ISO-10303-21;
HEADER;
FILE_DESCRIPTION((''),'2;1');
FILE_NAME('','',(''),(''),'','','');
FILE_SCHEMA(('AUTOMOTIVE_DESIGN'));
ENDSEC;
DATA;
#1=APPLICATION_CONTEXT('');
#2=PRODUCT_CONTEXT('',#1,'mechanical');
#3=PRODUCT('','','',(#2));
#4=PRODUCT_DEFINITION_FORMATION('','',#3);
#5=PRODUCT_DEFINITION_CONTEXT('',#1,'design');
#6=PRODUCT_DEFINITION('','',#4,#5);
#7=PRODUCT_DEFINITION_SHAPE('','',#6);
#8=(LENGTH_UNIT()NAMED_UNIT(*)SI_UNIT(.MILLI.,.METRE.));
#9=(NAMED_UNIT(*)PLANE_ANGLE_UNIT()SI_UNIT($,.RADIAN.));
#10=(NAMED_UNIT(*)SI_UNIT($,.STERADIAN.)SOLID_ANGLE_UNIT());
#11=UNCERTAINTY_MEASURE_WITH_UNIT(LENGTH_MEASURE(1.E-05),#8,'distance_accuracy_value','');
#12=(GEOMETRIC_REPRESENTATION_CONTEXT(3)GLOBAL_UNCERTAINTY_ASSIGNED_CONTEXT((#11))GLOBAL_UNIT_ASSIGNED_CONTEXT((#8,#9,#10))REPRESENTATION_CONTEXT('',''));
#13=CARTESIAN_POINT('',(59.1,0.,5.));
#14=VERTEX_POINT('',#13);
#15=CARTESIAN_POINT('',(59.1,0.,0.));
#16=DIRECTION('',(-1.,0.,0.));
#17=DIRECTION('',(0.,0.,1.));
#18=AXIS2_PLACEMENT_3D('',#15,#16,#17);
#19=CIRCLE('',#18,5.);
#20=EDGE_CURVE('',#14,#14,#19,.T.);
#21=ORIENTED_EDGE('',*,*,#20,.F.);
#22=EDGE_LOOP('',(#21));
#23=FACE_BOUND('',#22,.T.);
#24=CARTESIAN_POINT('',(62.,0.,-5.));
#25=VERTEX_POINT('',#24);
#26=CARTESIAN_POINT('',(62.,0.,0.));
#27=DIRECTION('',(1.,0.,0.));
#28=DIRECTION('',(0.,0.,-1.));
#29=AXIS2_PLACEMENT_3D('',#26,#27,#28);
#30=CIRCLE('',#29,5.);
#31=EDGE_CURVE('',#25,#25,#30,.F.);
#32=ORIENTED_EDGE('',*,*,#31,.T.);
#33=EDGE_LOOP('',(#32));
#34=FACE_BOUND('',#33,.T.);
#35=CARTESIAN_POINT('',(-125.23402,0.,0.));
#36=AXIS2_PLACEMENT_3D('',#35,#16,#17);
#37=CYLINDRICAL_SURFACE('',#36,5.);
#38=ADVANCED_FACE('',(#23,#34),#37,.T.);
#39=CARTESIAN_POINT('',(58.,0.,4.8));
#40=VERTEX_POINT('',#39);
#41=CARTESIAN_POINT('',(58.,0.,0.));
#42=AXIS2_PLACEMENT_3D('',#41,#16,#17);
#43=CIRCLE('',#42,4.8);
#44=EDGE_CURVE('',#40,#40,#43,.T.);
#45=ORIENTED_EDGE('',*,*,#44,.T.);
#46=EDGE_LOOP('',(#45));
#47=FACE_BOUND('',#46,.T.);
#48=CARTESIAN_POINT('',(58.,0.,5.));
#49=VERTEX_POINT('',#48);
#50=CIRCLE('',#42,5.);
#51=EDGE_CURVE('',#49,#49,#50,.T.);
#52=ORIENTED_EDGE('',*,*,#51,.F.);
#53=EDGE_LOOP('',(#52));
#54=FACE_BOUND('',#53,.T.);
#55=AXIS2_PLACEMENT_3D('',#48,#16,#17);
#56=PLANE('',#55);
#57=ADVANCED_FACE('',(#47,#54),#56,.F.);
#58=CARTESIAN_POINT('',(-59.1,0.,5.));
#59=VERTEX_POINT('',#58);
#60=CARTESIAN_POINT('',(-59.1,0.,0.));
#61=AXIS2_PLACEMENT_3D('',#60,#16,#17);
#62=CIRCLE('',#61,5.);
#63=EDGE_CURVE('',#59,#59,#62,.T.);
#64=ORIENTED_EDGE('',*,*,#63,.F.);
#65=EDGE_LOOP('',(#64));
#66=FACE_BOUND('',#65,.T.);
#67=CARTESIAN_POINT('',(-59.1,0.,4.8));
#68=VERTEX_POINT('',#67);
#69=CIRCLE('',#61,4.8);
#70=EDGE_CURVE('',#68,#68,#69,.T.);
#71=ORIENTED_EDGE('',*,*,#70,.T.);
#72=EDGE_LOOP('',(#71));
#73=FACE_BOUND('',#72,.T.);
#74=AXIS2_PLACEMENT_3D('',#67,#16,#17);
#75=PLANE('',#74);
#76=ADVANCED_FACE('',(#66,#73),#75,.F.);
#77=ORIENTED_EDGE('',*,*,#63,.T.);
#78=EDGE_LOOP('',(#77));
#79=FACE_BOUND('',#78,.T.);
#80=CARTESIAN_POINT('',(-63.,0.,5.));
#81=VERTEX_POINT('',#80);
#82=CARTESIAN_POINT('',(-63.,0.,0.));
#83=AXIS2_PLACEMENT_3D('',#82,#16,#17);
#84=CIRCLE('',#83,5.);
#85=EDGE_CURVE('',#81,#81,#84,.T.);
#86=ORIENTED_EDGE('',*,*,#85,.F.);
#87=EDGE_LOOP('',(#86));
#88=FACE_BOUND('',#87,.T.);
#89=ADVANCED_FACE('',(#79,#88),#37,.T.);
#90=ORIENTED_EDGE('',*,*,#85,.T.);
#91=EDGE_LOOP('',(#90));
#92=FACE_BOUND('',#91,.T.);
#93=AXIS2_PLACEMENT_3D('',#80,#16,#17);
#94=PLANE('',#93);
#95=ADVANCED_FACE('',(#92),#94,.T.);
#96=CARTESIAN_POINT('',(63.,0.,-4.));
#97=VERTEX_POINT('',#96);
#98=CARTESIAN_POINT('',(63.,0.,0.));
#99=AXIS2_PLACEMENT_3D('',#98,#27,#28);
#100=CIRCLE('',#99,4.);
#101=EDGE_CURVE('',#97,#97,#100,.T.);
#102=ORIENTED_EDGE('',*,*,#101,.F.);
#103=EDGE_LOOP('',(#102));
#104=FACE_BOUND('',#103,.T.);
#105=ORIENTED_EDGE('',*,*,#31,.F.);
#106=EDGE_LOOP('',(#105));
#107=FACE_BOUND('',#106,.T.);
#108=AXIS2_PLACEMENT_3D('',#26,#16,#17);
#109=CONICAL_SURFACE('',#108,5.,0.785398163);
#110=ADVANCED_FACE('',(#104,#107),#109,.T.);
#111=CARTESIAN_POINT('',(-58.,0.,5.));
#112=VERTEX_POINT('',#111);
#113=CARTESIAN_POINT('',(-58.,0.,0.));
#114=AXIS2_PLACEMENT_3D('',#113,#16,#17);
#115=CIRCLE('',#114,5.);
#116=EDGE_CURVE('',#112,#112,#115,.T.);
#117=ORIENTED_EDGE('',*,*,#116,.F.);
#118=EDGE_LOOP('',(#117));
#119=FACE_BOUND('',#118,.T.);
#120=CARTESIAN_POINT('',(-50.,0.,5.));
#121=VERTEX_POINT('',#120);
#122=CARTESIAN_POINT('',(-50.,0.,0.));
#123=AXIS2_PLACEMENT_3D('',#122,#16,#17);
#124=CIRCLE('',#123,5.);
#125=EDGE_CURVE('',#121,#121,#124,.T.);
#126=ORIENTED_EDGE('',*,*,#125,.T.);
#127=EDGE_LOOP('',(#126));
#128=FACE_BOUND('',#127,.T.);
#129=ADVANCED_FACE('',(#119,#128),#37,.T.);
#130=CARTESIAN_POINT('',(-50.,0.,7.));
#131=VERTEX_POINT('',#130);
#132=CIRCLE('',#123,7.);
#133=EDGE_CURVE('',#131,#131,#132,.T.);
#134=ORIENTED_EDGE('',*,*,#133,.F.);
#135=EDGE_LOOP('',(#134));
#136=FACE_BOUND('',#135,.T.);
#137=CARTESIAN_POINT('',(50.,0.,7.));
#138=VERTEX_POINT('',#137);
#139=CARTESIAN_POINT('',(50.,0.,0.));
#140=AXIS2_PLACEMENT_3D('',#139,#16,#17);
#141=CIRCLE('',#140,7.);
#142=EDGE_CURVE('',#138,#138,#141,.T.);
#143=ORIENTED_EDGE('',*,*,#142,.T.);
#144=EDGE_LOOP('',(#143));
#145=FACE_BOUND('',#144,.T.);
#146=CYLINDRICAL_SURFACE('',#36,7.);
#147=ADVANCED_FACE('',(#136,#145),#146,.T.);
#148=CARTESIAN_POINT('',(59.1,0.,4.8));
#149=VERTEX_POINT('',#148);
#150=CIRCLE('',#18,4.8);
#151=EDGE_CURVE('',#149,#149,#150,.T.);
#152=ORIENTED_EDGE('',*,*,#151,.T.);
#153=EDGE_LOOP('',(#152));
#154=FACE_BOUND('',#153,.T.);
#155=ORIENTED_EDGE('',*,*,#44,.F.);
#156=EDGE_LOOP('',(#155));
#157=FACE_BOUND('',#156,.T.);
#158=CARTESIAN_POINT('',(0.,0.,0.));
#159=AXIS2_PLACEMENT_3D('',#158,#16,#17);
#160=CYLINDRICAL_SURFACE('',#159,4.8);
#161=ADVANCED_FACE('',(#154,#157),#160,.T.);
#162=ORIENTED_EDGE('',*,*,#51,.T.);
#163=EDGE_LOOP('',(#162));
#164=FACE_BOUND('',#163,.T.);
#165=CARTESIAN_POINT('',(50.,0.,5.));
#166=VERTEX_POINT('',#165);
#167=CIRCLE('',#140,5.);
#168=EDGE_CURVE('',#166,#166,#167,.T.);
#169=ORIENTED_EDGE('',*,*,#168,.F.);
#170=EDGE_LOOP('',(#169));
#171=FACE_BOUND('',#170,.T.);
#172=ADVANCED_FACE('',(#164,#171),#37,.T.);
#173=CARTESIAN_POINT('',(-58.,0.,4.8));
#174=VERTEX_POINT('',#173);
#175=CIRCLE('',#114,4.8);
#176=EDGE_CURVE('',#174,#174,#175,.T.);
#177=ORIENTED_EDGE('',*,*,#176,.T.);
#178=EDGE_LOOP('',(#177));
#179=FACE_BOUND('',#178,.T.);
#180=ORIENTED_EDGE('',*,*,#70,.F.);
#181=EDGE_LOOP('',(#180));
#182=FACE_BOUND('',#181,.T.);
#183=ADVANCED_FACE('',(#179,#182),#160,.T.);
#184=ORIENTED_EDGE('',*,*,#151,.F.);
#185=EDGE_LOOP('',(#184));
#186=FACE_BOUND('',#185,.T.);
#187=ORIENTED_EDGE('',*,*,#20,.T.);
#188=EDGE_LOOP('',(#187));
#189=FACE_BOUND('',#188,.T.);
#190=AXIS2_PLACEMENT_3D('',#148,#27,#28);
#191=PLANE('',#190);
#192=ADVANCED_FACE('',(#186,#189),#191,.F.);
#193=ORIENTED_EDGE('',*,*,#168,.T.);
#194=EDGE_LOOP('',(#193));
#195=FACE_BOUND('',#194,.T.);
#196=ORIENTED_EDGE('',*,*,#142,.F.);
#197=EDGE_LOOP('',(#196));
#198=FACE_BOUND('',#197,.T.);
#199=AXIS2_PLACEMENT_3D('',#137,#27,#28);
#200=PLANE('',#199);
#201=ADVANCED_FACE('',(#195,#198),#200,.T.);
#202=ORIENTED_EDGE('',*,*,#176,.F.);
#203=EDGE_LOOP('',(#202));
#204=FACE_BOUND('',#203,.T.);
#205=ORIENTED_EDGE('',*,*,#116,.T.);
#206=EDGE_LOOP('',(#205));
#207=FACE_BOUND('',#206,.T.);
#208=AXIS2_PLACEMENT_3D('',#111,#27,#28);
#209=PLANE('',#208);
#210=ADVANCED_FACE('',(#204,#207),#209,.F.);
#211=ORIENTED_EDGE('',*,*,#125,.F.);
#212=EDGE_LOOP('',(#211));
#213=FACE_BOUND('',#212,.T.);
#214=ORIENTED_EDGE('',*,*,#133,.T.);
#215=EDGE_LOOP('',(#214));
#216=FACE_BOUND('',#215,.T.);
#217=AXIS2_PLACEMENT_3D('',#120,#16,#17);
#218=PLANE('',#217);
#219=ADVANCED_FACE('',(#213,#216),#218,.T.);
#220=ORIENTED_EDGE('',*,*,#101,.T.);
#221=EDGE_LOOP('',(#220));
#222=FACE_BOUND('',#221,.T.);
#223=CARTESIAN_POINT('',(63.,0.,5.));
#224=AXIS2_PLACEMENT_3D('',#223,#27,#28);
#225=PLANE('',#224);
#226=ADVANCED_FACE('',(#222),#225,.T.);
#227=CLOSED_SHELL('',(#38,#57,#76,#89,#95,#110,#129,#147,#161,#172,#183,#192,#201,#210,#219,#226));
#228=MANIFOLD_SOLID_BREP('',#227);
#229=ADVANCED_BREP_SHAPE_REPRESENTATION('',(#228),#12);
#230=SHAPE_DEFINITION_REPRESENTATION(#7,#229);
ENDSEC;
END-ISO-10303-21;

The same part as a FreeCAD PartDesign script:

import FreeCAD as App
import Part
import Sketcher

V = App.Vector
Q = App.Units.Quantity


def edges_at(feature, points):
    """Names of the edges that pass closest to the given points."""
    edges = feature.Shape.Edges
    near = lambda p: min(range(len(edges)), key=lambda i: edges[i].distToShape(Part.Vertex(*p))[0])
    return sorted({f"Edge{near(p) + 1}" for p in points})


def add_polygon(sketch, points):
    """Adds a closed chain of lines whose ends are joined by coincident constraints."""
    first, n = sketch.GeometryCount, len(points)
    for a, b in zip(points, points[1:] + points[:1]):
        sketch.addGeometry(Part.LineSegment(App.Vector(*a, 0), App.Vector(*b, 0)), False)
    for i in range(n):
        sketch.addConstraint(Sketcher.Constraint("Coincident", first + i, 2, first + (i + 1) % n, 1))

doc = App.newDocument("Part")
body = doc.addObject("PartDesign::Body", "Body")

sketch1 = doc.addObject("Sketcher::SketchObject", "Sketch")
body.addObject(sketch1)
sketch1.AttachmentSupport = (doc.XZ_Plane, [""])
sketch1.MapMode = "FlatFace"
add_polygon(sketch1, [(-63, 5), (-50, 5), (-50, 7), (50, 7), (50, 5), (63, 5), (63, 0), (-63, 0)])
sketch1.addConstraint(Sketcher.Constraint("Horizontal", 0))
sketch1.addConstraint(Sketcher.Constraint("Vertical", 1))
sketch1.addConstraint(Sketcher.Constraint("Horizontal", 2))
sketch1.addConstraint(Sketcher.Constraint("Vertical", 3))
sketch1.addConstraint(Sketcher.Constraint("Horizontal", 4))
sketch1.addConstraint(Sketcher.Constraint("Vertical", 5))
sketch1.addConstraint(Sketcher.Constraint("Horizontal", 6))
sketch1.addConstraint(Sketcher.Constraint("Vertical", 7))
sketch1.addConstraint(Sketcher.Constraint("Symmetric", 5, 2, 6, 2, -1, 1))
sketch1.addConstraint(Sketcher.Constraint("Symmetric", 0, 2, 3, 2, -2))
sketch1.addConstraint(Sketcher.Constraint("DistanceX", 0, 1, 0, 2, Q("13 mm")))
sketch1.addConstraint(Sketcher.Constraint("DistanceX", 2, 1, 2, 2, Q("100 mm")))
sketch1.addConstraint(Sketcher.Constraint("DistanceY", 1, 1, 1, 2, Q("2 mm")))
sketch1.addConstraint(Sketcher.Constraint("DistanceY", 5, 2, 5, 1, Q("5 mm")))
revolution = doc.addObject("PartDesign::Revolution", "Revolution")
body.addObject(revolution)
revolution.Profile = sketch1
revolution.ReferenceAxis = (sketch1, ["H_Axis"])
revolution.Angle = 360

sketch2 = doc.addObject("Sketcher::SketchObject", "Sketch001")
body.addObject(sketch2)
sketch2.AttachmentSupport = (doc.XZ_Plane, [""])
sketch2.MapMode = "FlatFace"
add_polygon(sketch2, [(58, 4.8), (58, 5), (59.1, 5), (59.1, 4.8)])
add_polygon(sketch2, [(-59.1, 4.8), (-59.1, 5), (-58, 5), (-58, 4.8)])
sketch2.addConstraint(Sketcher.Constraint("Vertical", 0))
sketch2.addConstraint(Sketcher.Constraint("Horizontal", 1))
sketch2.addConstraint(Sketcher.Constraint("Vertical", 2))
sketch2.addConstraint(Sketcher.Constraint("Horizontal", 3))
sketch2.addConstraint(Sketcher.Constraint("Vertical", 4))
sketch2.addConstraint(Sketcher.Constraint("Horizontal", 5))
sketch2.addConstraint(Sketcher.Constraint("Vertical", 6))
sketch2.addConstraint(Sketcher.Constraint("Horizontal", 7))
sketch2.addConstraint(Sketcher.Constraint("Symmetric", 1, 2, 4, 2, -2))
sketch2.addConstraint(Sketcher.Constraint("Symmetric", 3, 2, 6, 2, -2))
sketch2.addConstraint(Sketcher.Constraint("DistanceX", 1, 1, 1, 2, Q("1.1 mm")))
sketch2.addConstraint(Sketcher.Constraint("DistanceY", 0, 1, 0, 2, Q("0.2 mm")))
sketch2.addConstraint(Sketcher.Constraint("DistanceX", -1, 1, 0, 2, Q("58 mm")))
sketch2.addConstraint(Sketcher.Constraint("DistanceY", -1, 1, 0, 2, Q("5 mm")))
groove = doc.addObject("PartDesign::Groove", "Groove")
body.addObject(groove)
groove.Profile = sketch2
groove.ReferenceAxis = (sketch2, ["H_Axis"])
groove.Angle = 360
doc.recompute()

chamfer = doc.addObject("PartDesign::Chamfer", "Chamfer")
body.addObject(chamfer)
chamfer.Base = (groove, edges_at(groove, [(63, 0, -5)]))
chamfer.Size = 1

doc.recompute()
